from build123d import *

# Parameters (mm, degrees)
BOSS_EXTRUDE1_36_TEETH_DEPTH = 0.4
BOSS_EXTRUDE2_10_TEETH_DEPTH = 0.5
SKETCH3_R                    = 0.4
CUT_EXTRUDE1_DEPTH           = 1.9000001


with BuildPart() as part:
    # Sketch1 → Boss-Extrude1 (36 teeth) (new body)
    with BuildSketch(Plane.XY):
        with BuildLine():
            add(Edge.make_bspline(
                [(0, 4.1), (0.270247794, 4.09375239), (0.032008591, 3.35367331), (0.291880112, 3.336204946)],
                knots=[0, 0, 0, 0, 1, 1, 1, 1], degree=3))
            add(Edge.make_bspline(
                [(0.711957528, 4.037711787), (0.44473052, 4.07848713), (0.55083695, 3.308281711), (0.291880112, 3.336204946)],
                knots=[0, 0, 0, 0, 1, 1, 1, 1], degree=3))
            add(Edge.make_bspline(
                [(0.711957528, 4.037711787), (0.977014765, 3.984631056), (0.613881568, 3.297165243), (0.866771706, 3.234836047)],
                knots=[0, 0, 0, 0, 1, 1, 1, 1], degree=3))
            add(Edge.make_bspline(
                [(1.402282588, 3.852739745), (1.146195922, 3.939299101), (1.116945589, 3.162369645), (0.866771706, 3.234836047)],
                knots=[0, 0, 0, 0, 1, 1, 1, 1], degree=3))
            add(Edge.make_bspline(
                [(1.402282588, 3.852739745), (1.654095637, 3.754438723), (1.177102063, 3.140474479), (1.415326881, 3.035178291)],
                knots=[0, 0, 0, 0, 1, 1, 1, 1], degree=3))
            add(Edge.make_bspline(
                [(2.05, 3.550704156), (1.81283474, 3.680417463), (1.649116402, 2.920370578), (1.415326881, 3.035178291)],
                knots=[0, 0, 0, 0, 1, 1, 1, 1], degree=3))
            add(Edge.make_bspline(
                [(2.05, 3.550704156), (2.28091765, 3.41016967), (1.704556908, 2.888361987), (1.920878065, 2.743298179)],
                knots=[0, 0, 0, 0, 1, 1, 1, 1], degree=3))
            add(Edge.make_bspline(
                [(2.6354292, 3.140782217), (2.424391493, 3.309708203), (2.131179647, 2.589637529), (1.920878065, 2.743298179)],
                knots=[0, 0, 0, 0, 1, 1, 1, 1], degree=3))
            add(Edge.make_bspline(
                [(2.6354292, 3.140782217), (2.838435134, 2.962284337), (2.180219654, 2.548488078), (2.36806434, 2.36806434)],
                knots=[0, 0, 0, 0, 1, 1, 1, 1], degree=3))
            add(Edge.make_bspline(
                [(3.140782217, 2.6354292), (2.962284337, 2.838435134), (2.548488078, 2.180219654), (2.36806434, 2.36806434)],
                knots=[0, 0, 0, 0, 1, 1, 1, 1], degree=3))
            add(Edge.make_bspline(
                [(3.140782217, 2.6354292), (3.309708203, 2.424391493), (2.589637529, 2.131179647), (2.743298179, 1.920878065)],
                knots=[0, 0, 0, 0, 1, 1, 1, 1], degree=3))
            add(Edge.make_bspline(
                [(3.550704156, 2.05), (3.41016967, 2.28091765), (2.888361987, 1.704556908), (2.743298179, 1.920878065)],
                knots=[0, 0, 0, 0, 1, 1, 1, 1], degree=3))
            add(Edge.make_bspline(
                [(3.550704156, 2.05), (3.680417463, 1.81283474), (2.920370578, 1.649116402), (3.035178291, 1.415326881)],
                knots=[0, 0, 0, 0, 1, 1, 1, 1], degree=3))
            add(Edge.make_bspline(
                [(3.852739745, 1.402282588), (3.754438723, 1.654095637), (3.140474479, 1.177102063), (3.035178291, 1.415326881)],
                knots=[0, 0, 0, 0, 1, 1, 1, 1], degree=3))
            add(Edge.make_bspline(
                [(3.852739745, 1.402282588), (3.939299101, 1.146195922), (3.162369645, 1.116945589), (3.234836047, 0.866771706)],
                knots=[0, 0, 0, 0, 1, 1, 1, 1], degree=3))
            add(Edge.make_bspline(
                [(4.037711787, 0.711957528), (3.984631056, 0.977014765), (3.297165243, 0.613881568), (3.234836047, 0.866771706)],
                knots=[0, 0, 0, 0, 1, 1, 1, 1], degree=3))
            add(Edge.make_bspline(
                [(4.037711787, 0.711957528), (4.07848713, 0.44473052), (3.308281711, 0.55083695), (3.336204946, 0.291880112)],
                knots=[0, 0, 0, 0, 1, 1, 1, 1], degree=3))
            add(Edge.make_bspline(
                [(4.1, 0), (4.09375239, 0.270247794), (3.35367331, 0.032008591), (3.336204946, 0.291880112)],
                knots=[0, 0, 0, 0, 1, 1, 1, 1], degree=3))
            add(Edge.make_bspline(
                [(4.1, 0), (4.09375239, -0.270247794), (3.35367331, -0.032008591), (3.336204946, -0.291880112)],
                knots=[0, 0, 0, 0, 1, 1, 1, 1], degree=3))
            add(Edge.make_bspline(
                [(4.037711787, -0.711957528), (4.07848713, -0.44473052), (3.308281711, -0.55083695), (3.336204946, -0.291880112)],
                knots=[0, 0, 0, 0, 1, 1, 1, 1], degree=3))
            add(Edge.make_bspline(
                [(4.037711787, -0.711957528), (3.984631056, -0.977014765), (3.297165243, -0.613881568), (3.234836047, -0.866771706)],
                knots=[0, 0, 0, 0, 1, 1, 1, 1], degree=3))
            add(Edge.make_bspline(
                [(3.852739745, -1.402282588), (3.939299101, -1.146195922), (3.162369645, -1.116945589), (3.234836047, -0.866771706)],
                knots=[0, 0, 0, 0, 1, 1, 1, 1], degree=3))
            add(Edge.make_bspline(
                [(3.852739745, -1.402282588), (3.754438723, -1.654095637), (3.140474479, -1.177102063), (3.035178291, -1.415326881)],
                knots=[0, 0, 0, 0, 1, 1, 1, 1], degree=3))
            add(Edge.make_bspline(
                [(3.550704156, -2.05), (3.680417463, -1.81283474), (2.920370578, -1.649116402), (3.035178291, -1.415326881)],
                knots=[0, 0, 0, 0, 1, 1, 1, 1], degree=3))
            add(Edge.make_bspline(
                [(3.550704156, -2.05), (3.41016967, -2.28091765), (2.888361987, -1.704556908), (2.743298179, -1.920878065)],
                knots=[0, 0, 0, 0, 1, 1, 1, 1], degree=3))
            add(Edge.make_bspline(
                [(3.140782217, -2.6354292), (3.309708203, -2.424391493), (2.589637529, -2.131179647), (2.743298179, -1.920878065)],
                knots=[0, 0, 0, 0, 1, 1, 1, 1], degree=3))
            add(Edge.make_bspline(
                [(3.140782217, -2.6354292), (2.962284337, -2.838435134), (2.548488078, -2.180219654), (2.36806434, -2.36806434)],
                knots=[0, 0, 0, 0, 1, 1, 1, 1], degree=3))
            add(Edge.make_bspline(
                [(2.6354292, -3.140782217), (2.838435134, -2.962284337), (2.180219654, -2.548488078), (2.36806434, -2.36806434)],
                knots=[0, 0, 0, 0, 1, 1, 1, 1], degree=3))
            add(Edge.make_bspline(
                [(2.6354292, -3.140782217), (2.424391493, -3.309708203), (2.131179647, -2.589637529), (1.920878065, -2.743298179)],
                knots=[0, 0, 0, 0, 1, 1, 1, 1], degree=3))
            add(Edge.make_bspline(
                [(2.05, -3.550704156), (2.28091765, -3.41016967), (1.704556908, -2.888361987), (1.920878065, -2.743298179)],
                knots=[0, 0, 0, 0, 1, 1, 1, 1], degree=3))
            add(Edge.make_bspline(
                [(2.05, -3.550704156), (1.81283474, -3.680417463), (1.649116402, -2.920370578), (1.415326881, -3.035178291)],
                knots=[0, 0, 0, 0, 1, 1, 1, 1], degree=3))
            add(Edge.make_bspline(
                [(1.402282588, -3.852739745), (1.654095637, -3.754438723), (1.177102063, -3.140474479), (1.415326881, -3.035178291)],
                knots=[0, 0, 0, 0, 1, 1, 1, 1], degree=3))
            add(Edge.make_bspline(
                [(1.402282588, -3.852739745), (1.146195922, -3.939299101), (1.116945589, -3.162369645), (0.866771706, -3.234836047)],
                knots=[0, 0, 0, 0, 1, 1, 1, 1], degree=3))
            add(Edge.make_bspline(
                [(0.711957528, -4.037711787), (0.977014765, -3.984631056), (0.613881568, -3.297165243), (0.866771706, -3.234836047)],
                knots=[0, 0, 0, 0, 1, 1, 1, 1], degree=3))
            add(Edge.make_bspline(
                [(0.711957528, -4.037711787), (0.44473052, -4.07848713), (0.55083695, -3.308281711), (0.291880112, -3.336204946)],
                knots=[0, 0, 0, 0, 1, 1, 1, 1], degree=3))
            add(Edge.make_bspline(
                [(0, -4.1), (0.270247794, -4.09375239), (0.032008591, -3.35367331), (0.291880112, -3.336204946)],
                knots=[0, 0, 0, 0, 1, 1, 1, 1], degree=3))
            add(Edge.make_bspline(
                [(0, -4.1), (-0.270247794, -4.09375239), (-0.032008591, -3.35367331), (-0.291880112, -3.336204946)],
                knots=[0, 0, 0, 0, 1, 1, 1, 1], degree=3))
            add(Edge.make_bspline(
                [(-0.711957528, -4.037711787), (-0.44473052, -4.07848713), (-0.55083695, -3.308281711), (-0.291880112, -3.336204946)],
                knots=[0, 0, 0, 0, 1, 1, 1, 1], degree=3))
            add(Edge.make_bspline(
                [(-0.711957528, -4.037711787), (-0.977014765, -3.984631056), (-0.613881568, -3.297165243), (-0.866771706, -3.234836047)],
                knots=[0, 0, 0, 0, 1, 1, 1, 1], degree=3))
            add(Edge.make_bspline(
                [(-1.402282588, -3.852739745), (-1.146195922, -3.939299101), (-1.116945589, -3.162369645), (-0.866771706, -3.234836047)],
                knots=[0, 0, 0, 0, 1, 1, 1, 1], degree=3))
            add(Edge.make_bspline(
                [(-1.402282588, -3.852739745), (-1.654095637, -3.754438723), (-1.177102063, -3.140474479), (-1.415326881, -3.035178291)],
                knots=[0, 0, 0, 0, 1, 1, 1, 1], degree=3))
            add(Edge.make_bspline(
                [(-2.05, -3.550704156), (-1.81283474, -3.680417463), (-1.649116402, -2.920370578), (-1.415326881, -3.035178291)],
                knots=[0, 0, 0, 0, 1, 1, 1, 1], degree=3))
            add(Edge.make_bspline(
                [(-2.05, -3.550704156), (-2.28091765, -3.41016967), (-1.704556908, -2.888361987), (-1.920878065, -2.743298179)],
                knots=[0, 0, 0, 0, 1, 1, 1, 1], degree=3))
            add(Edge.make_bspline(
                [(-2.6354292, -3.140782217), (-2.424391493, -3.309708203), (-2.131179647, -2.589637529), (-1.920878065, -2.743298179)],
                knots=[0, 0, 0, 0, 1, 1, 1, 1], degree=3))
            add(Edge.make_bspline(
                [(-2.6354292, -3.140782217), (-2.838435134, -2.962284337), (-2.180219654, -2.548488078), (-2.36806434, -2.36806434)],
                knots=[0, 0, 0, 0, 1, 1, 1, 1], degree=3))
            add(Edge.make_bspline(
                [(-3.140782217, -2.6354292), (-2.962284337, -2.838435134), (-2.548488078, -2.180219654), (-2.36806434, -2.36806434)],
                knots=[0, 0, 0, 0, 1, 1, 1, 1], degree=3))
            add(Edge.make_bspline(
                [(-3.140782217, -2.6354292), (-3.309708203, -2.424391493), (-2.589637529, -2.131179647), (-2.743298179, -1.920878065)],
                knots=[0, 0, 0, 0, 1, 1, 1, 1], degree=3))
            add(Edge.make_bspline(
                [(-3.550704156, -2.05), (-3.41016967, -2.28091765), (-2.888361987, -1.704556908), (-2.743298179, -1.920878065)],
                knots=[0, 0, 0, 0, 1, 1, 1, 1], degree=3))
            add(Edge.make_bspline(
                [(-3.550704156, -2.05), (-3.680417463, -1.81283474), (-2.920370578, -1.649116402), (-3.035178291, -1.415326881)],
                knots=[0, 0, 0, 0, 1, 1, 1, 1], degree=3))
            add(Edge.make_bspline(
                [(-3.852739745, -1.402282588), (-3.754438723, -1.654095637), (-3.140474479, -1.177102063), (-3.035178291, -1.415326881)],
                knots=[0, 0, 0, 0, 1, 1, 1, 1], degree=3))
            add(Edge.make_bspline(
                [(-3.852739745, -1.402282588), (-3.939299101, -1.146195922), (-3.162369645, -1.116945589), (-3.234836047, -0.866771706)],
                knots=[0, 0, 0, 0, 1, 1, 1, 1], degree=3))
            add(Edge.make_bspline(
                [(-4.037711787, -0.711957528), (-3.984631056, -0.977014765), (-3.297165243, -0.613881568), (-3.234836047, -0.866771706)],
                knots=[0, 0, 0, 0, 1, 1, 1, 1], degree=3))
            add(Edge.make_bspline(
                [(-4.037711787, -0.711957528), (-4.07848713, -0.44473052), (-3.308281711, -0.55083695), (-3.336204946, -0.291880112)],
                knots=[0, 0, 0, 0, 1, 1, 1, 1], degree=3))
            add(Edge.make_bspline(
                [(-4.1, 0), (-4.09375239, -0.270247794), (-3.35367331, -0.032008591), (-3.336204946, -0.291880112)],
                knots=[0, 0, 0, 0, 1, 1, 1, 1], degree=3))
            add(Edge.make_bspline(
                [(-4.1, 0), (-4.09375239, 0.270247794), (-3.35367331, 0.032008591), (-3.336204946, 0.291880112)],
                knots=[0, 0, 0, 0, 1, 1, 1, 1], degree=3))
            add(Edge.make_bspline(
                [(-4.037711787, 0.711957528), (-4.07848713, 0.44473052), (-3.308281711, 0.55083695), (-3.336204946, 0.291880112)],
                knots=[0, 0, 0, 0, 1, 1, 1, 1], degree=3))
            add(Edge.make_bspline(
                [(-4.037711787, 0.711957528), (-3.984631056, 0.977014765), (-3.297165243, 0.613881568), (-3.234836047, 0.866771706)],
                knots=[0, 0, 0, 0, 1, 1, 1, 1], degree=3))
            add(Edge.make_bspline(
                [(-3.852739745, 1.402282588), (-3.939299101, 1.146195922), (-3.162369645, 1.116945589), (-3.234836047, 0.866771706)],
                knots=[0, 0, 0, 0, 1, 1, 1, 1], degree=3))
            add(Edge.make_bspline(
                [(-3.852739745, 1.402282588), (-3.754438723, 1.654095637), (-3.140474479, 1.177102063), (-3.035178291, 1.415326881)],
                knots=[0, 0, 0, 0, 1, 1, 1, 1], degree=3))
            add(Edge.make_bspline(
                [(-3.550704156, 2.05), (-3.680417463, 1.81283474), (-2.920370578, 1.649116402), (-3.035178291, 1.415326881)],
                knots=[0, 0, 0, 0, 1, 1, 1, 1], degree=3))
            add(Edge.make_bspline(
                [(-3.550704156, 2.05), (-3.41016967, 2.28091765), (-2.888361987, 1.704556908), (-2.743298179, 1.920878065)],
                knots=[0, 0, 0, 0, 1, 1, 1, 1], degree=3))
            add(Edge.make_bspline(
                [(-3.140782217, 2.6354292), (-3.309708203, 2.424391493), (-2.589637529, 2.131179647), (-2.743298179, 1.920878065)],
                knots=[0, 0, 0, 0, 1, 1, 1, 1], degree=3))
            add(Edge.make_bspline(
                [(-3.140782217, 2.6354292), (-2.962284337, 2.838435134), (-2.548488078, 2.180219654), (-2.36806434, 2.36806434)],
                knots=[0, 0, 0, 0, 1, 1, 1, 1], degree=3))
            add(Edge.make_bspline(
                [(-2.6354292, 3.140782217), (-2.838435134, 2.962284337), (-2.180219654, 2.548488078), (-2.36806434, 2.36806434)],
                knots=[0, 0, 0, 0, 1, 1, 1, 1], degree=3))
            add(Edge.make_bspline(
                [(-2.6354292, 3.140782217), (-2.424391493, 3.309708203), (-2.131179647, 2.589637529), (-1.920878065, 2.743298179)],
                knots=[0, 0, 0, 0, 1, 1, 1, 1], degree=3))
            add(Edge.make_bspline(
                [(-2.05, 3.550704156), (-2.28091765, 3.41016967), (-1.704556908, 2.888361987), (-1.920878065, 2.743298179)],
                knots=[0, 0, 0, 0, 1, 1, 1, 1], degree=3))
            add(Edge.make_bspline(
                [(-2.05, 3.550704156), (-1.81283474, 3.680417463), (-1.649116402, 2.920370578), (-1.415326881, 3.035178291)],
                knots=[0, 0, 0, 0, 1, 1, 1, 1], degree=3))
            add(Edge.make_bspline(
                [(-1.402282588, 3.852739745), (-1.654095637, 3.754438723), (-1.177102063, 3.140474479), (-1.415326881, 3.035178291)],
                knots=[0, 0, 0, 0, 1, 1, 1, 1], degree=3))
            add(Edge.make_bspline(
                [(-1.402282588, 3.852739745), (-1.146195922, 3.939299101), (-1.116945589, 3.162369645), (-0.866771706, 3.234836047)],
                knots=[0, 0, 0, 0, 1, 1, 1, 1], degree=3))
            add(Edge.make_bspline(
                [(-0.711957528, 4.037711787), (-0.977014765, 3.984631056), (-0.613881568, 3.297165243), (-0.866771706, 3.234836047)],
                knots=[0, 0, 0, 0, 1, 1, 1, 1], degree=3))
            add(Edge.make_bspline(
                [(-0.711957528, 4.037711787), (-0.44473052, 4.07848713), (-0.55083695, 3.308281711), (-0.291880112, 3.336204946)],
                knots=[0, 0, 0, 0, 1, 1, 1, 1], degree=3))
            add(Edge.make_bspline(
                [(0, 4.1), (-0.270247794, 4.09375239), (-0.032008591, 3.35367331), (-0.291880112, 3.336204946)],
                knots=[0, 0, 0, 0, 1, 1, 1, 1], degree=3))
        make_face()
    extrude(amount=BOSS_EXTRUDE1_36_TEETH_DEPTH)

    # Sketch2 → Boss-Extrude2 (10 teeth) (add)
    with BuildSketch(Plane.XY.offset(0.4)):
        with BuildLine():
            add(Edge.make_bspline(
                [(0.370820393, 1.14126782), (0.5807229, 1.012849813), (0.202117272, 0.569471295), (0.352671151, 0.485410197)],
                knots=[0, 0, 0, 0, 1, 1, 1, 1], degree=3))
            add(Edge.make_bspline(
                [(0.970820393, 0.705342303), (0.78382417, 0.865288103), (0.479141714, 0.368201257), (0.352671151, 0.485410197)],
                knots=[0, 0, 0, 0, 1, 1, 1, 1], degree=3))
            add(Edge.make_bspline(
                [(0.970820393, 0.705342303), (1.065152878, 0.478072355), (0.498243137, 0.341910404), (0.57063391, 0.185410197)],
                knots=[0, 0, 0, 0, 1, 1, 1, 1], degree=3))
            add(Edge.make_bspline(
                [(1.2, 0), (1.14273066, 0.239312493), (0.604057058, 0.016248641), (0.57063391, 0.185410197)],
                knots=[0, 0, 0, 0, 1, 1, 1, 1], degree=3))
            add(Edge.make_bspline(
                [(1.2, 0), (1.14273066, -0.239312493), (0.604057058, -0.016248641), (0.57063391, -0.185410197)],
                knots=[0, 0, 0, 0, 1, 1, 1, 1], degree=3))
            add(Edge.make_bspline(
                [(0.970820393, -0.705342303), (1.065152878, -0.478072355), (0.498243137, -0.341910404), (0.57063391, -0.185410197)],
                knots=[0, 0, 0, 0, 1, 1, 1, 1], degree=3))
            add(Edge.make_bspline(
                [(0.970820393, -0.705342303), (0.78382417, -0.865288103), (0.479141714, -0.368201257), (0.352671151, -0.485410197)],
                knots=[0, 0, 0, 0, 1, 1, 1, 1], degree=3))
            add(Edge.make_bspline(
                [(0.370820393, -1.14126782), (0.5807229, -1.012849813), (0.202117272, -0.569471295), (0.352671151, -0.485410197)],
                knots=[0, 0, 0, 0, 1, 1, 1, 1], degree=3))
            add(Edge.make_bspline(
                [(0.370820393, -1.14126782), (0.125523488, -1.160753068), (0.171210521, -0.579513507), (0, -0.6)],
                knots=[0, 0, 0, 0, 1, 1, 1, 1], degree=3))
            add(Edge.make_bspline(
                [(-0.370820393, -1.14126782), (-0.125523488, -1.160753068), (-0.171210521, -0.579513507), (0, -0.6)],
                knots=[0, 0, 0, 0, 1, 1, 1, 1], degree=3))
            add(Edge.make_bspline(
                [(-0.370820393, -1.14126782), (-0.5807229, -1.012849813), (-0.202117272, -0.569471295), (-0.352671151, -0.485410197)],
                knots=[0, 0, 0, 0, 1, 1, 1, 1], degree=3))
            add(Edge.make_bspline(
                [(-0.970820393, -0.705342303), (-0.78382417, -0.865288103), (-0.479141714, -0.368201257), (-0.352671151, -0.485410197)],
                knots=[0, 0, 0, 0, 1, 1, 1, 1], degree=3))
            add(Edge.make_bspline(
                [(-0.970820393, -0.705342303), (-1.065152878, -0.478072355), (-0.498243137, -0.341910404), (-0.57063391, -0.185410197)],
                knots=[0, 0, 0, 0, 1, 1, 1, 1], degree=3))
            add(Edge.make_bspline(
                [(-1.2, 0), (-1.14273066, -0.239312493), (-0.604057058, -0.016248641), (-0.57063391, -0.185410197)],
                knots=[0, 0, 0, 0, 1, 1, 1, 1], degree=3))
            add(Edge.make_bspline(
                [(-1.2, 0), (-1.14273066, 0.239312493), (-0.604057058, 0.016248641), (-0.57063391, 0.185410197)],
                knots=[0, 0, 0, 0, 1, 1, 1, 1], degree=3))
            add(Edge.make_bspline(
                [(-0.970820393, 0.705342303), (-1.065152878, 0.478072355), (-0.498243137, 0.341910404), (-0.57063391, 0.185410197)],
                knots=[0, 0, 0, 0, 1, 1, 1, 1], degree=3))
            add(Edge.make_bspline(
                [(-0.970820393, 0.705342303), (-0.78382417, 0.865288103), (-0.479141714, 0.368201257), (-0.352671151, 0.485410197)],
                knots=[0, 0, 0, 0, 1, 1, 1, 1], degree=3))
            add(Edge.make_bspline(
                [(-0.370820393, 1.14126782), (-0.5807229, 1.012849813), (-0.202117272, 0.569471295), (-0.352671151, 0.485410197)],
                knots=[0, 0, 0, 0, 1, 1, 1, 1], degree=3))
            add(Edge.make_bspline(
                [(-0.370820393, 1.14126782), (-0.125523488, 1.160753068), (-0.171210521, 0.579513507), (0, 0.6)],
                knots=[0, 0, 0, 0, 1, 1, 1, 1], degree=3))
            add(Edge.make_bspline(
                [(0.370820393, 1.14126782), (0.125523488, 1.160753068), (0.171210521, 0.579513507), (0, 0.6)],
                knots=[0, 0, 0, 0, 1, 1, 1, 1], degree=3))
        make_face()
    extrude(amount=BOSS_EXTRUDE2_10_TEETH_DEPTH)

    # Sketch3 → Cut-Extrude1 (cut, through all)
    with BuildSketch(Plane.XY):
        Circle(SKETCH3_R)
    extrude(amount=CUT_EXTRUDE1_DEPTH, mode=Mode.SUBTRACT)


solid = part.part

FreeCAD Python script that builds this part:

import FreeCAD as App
import Part
import Sketcher
from FreeCAD import Vector
Q = App.Units.Quantity

doc = App.newDocument("Part")
body = doc.addObject("PartDesign::Body", "Body")

sketch1 = body.newObject("Sketcher::SketchObject", "Sketch")
sketch1.AttachmentSupport = (doc.getObject("XY_Plane"), [""])
sketch1.MapMode = "FlatFace"
sketch1.addGeometry([
    Part.BSplineCurve([Vector(0, 4.1, 0), Vector(0.270248, 4.093752, 0), Vector(0.032009, 3.353673, 0), Vector(0.29188, 3.336205, 0)], [4, 4], [0, 1], False, 3, [1, 1, 1, 1], False),
    Part.BSplineCurve([Vector(0, 4.1, 0), Vector(-0.270248, 4.093752, 0), Vector(-0.032009, 3.353673, 0), Vector(-0.29188, 3.336205, 0)], [4, 4], [0, 1], False, 3, [1, 1, 1, 1], False),
    Part.BSplineCurve([Vector(-0.711958, 4.037712, 0), Vector(-0.444731, 4.078487, 0), Vector(-0.550837, 3.308282, 0), Vector(-0.29188, 3.336205, 0)], [4, 4], [0, 1], False, 3, [1, 1, 1, 1], False),
    Part.BSplineCurve([Vector(-0.711958, 4.037712, 0), Vector(-0.977015, 3.984631, 0), Vector(-0.613882, 3.297165, 0), Vector(-0.866772, 3.234836, 0)], [4, 4], [0, 1], False, 3, [1, 1, 1, 1], False),
    Part.BSplineCurve([Vector(-1.402283, 3.85274, 0), Vector(-1.146196, 3.939299, 0), Vector(-1.116946, 3.16237, 0), Vector(-0.866772, 3.234836, 0)], [4, 4], [0, 1], False, 3, [1, 1, 1, 1], False),
    Part.BSplineCurve([Vector(-1.402283, 3.85274, 0), Vector(-1.654096, 3.754439, 0), Vector(-1.177102, 3.140474, 0), Vector(-1.415327, 3.035178, 0)], [4, 4], [0, 1], False, 3, [1, 1, 1, 1], False),
    Part.BSplineCurve([Vector(-2.05, 3.550704, 0), Vector(-1.812835, 3.680417, 0), Vector(-1.649116, 2.920371, 0), Vector(-1.415327, 3.035178, 0)], [4, 4], [0, 1], False, 3, [1, 1, 1, 1], False),
    Part.BSplineCurve([Vector(-2.05, 3.550704, 0), Vector(-2.280918, 3.41017, 0), Vector(-1.704557, 2.888362, 0), Vector(-1.920878, 2.743298, 0)], [4, 4], [0, 1], False, 3, [1, 1, 1, 1], False),
    Part.BSplineCurve([Vector(-2.635429, 3.140782, 0), Vector(-2.424391, 3.309708, 0), Vector(-2.13118, 2.589638, 0), Vector(-1.920878, 2.743298, 0)], [4, 4], [0, 1], False, 3, [1, 1, 1, 1], False),
    Part.BSplineCurve([Vector(-2.635429, 3.140782, 0), Vector(-2.838435, 2.962284, 0), Vector(-2.18022, 2.548488, 0), Vector(-2.368064, 2.368064, 0)], [4, 4], [0, 1], False, 3, [1, 1, 1, 1], False),
    Part.BSplineCurve([Vector(-3.140782, 2.635429, 0), Vector(-2.962284, 2.838435, 0), Vector(-2.548488, 2.18022, 0), Vector(-2.368064, 2.368064, 0)], [4, 4], [0, 1], False, 3, [1, 1, 1, 1], False),
    Part.BSplineCurve([Vector(-3.140782, 2.635429, 0), Vector(-3.309708, 2.424391, 0), Vector(-2.589638, 2.13118, 0), Vector(-2.743298, 1.920878, 0)], [4, 4], [0, 1], False, 3, [1, 1, 1, 1], False),
    Part.BSplineCurve([Vector(-3.550704, 2.05, 0), Vector(-3.41017, 2.280918, 0), Vector(-2.888362, 1.704557, 0), Vector(-2.743298, 1.920878, 0)], [4, 4], [0, 1], False, 3, [1, 1, 1, 1], False),
    Part.BSplineCurve([Vector(-3.550704, 2.05, 0), Vector(-3.680417, 1.812835, 0), Vector(-2.920371, 1.649116, 0), Vector(-3.035178, 1.415327, 0)], [4, 4], [0, 1], False, 3, [1, 1, 1, 1], False),
    Part.BSplineCurve([Vector(-3.85274, 1.402283, 0), Vector(-3.754439, 1.654096, 0), Vector(-3.140474, 1.177102, 0), Vector(-3.035178, 1.415327, 0)], [4, 4], [0, 1], False, 3, [1, 1, 1, 1], False),
    Part.BSplineCurve([Vector(-3.85274, 1.402283, 0), Vector(-3.939299, 1.146196, 0), Vector(-3.16237, 1.116946, 0), Vector(-3.234836, 0.866772, 0)], [4, 4], [0, 1], False, 3, [1, 1, 1, 1], False),
    Part.BSplineCurve([Vector(-4.037712, 0.711958, 0), Vector(-3.984631, 0.977015, 0), Vector(-3.297165, 0.613882, 0), Vector(-3.234836, 0.866772, 0)], [4, 4], [0, 1], False, 3, [1, 1, 1, 1], False),
    Part.BSplineCurve([Vector(-4.037712, 0.711958, 0), Vector(-4.078487, 0.444731, 0), Vector(-3.308282, 0.550837, 0), Vector(-3.336205, 0.29188, 0)], [4, 4], [0, 1], False, 3, [1, 1, 1, 1], False),
    Part.BSplineCurve([Vector(-4.1, 0, 0), Vector(-4.093752, 0.270248, 0), Vector(-3.353673, 0.032009, 0), Vector(-3.336205, 0.29188, 0)], [4, 4], [0, 1], False, 3, [1, 1, 1, 1], False),
    Part.BSplineCurve([Vector(-4.1, 0, 0), Vector(-4.093752, -0.270248, 0), Vector(-3.353673, -0.032009, 0), Vector(-3.336205, -0.29188, 0)], [4, 4], [0, 1], False, 3, [1, 1, 1, 1], False),
    Part.BSplineCurve([Vector(-4.037712, -0.711958, 0), Vector(-4.078487, -0.444731, 0), Vector(-3.308282, -0.550837, 0), Vector(-3.336205, -0.29188, 0)], [4, 4], [0, 1], False, 3, [1, 1, 1, 1], False),
    Part.BSplineCurve([Vector(-4.037712, -0.711958, 0), Vector(-3.984631, -0.977015, 0), Vector(-3.297165, -0.613882, 0), Vector(-3.234836, -0.866772, 0)], [4, 4], [0, 1], False, 3, [1, 1, 1, 1], False),
    Part.BSplineCurve([Vector(-3.85274, -1.402283, 0), Vector(-3.939299, -1.146196, 0), Vector(-3.16237, -1.116946, 0), Vector(-3.234836, -0.866772, 0)], [4, 4], [0, 1], False, 3, [1, 1, 1, 1], False),
    Part.BSplineCurve([Vector(-3.85274, -1.402283, 0), Vector(-3.754439, -1.654096, 0), Vector(-3.140474, -1.177102, 0), Vector(-3.035178, -1.415327, 0)], [4, 4], [0, 1], False, 3, [1, 1, 1, 1], False),
    Part.BSplineCurve([Vector(-3.550704, -2.05, 0), Vector(-3.680417, -1.812835, 0), Vector(-2.920371, -1.649116, 0), Vector(-3.035178, -1.415327, 0)], [4, 4], [0, 1], False, 3, [1, 1, 1, 1], False),
    Part.BSplineCurve([Vector(-3.550704, -2.05, 0), Vector(-3.41017, -2.280918, 0), Vector(-2.888362, -1.704557, 0), Vector(-2.743298, -1.920878, 0)], [4, 4], [0, 1], False, 3, [1, 1, 1, 1], False),
    Part.BSplineCurve([Vector(-3.140782, -2.635429, 0), Vector(-3.309708, -2.424391, 0), Vector(-2.589638, -2.13118, 0), Vector(-2.743298, -1.920878, 0)], [4, 4], [0, 1], False, 3, [1, 1, 1, 1], False),
    Part.BSplineCurve([Vector(-3.140782, -2.635429, 0), Vector(-2.962284, -2.838435, 0), Vector(-2.548488, -2.18022, 0), Vector(-2.368064, -2.368064, 0)], [4, 4], [0, 1], False, 3, [1, 1, 1, 1], False),
    Part.BSplineCurve([Vector(-2.635429, -3.140782, 0), Vector(-2.838435, -2.962284, 0), Vector(-2.18022, -2.548488, 0), Vector(-2.368064, -2.368064, 0)], [4, 4], [0, 1], False, 3, [1, 1, 1, 1], False),
    Part.BSplineCurve([Vector(-2.635429, -3.140782, 0), Vector(-2.424391, -3.309708, 0), Vector(-2.13118, -2.589638, 0), Vector(-1.920878, -2.743298, 0)], [4, 4], [0, 1], False, 3, [1, 1, 1, 1], False),
    Part.BSplineCurve([Vector(-2.05, -3.550704, 0), Vector(-2.280918, -3.41017, 0), Vector(-1.704557, -2.888362, 0), Vector(-1.920878, -2.743298, 0)], [4, 4], [0, 1], False, 3, [1, 1, 1, 1], False),
    Part.BSplineCurve([Vector(-2.05, -3.550704, 0), Vector(-1.812835, -3.680417, 0), Vector(-1.649116, -2.920371, 0), Vector(-1.415327, -3.035178, 0)], [4, 4], [0, 1], False, 3, [1, 1, 1, 1], False),
    Part.BSplineCurve([Vector(-1.402283, -3.85274, 0), Vector(-1.654096, -3.754439, 0), Vector(-1.177102, -3.140474, 0), Vector(-1.415327, -3.035178, 0)], [4, 4], [0, 1], False, 3, [1, 1, 1, 1], False),
    Part.BSplineCurve([Vector(-1.402283, -3.85274, 0), Vector(-1.146196, -3.939299, 0), Vector(-1.116946, -3.16237, 0), Vector(-0.866772, -3.234836, 0)], [4, 4], [0, 1], False, 3, [1, 1, 1, 1], False),
    Part.BSplineCurve([Vector(-0.711958, -4.037712, 0), Vector(-0.977015, -3.984631, 0), Vector(-0.613882, -3.297165, 0), Vector(-0.866772, -3.234836, 0)], [4, 4], [0, 1], False, 3, [1, 1, 1, 1], False),
    Part.BSplineCurve([Vector(-0.711958, -4.037712, 0), Vector(-0.444731, -4.078487, 0), Vector(-0.550837, -3.308282, 0), Vector(-0.29188, -3.336205, 0)], [4, 4], [0, 1], False, 3, [1, 1, 1, 1], False),
    Part.BSplineCurve([Vector(0, -4.1, 0), Vector(-0.270248, -4.093752, 0), Vector(-0.032009, -3.353673, 0), Vector(-0.29188, -3.336205, 0)], [4, 4], [0, 1], False, 3, [1, 1, 1, 1], False),
    Part.BSplineCurve([Vector(0, -4.1, 0), Vector(0.270248, -4.093752, 0), Vector(0.032009, -3.353673, 0), Vector(0.29188, -3.336205, 0)], [4, 4], [0, 1], False, 3, [1, 1, 1, 1], False),
    Part.BSplineCurve([Vector(0.711958, -4.037712, 0), Vector(0.444731, -4.078487, 0), Vector(0.550837, -3.308282, 0), Vector(0.29188, -3.336205, 0)], [4, 4], [0, 1], False, 3, [1, 1, 1, 1], False),
    Part.BSplineCurve([Vector(0.711958, -4.037712, 0), Vector(0.977015, -3.984631, 0), Vector(0.613882, -3.297165, 0), Vector(0.866772, -3.234836, 0)], [4, 4], [0, 1], False, 3, [1, 1, 1, 1], False),
    Part.BSplineCurve([Vector(1.402283, -3.85274, 0), Vector(1.146196, -3.939299, 0), Vector(1.116946, -3.16237, 0), Vector(0.866772, -3.234836, 0)], [4, 4], [0, 1], False, 3, [1, 1, 1, 1], False),
    Part.BSplineCurve([Vector(1.402283, -3.85274, 0), Vector(1.654096, -3.754439, 0), Vector(1.177102, -3.140474, 0), Vector(1.415327, -3.035178, 0)], [4, 4], [0, 1], False, 3, [1, 1, 1, 1], False),
    Part.BSplineCurve([Vector(2.05, -3.550704, 0), Vector(1.812835, -3.680417, 0), Vector(1.649116, -2.920371, 0), Vector(1.415327, -3.035178, 0)], [4, 4], [0, 1], False, 3, [1, 1, 1, 1], False),
    Part.BSplineCurve([Vector(2.05, -3.550704, 0), Vector(2.280918, -3.41017, 0), Vector(1.704557, -2.888362, 0), Vector(1.920878, -2.743298, 0)], [4, 4], [0, 1], False, 3, [1, 1, 1, 1], False),
    Part.BSplineCurve([Vector(2.635429, -3.140782, 0), Vector(2.424391, -3.309708, 0), Vector(2.13118, -2.589638, 0), Vector(1.920878, -2.743298, 0)], [4, 4], [0, 1], False, 3, [1, 1, 1, 1], False),
    Part.BSplineCurve([Vector(2.635429, -3.140782, 0), Vector(2.838435, -2.962284, 0), Vector(2.18022, -2.548488, 0), Vector(2.368064, -2.368064, 0)], [4, 4], [0, 1], False, 3, [1, 1, 1, 1], False),
    Part.BSplineCurve([Vector(3.140782, -2.635429, 0), Vector(2.962284, -2.838435, 0), Vector(2.548488, -2.18022, 0), Vector(2.368064, -2.368064, 0)], [4, 4], [0, 1], False, 3, [1, 1, 1, 1], False),
    Part.BSplineCurve([Vector(3.140782, -2.635429, 0), Vector(3.309708, -2.424391, 0), Vector(2.589638, -2.13118, 0), Vector(2.743298, -1.920878, 0)], [4, 4], [0, 1], False, 3, [1, 1, 1, 1], False),
    Part.BSplineCurve([Vector(3.550704, -2.05, 0), Vector(3.41017, -2.280918, 0), Vector(2.888362, -1.704557, 0), Vector(2.743298, -1.920878, 0)], [4, 4], [0, 1], False, 3, [1, 1, 1, 1], False),
    Part.BSplineCurve([Vector(3.550704, -2.05, 0), Vector(3.680417, -1.812835, 0), Vector(2.920371, -1.649116, 0), Vector(3.035178, -1.415327, 0)], [4, 4], [0, 1], False, 3, [1, 1, 1, 1], False),
    Part.BSplineCurve([Vector(3.85274, -1.402283, 0), Vector(3.754439, -1.654096, 0), Vector(3.140474, -1.177102, 0), Vector(3.035178, -1.415327, 0)], [4, 4], [0, 1], False, 3, [1, 1, 1, 1], False),
    Part.BSplineCurve([Vector(3.85274, -1.402283, 0), Vector(3.939299, -1.146196, 0), Vector(3.16237, -1.116946, 0), Vector(3.234836, -0.866772, 0)], [4, 4], [0, 1], False, 3, [1, 1, 1, 1], False),
    Part.BSplineCurve([Vector(4.037712, -0.711958, 0), Vector(3.984631, -0.977015, 0), Vector(3.297165, -0.613882, 0), Vector(3.234836, -0.866772, 0)], [4, 4], [0, 1], False, 3, [1, 1, 1, 1], False),
    Part.BSplineCurve([Vector(4.037712, -0.711958, 0), Vector(4.078487, -0.444731, 0), Vector(3.308282, -0.550837, 0), Vector(3.336205, -0.29188, 0)], [4, 4], [0, 1], False, 3, [1, 1, 1, 1], False),
    Part.BSplineCurve([Vector(4.1, 0, 0), Vector(4.093752, -0.270248, 0), Vector(3.353673, -0.032009, 0), Vector(3.336205, -0.29188, 0)], [4, 4], [0, 1], False, 3, [1, 1, 1, 1], False),
    Part.BSplineCurve([Vector(4.1, 0, 0), Vector(4.093752, 0.270248, 0), Vector(3.353673, 0.032009, 0), Vector(3.336205, 0.29188, 0)], [4, 4], [0, 1], False, 3, [1, 1, 1, 1], False),
    Part.BSplineCurve([Vector(4.037712, 0.711958, 0), Vector(4.078487, 0.444731, 0), Vector(3.308282, 0.550837, 0), Vector(3.336205, 0.29188, 0)], [4, 4], [0, 1], False, 3, [1, 1, 1, 1], False),
    Part.BSplineCurve([Vector(4.037712, 0.711958, 0), Vector(3.984631, 0.977015, 0), Vector(3.297165, 0.613882, 0), Vector(3.234836, 0.866772, 0)], [4, 4], [0, 1], False, 3, [1, 1, 1, 1], False),
    Part.BSplineCurve([Vector(3.85274, 1.402283, 0), Vector(3.939299, 1.146196, 0), Vector(3.16237, 1.116946, 0), Vector(3.234836, 0.866772, 0)], [4, 4], [0, 1], False, 3, [1, 1, 1, 1], False),
    Part.BSplineCurve([Vector(3.85274, 1.402283, 0), Vector(3.754439, 1.654096, 0), Vector(3.140474, 1.177102, 0), Vector(3.035178, 1.415327, 0)], [4, 4], [0, 1], False, 3, [1, 1, 1, 1], False),
    Part.BSplineCurve([Vector(3.550704, 2.05, 0), Vector(3.680417, 1.812835, 0), Vector(2.920371, 1.649116, 0), Vector(3.035178, 1.415327, 0)], [4, 4], [0, 1], False, 3, [1, 1, 1, 1], False),
    Part.BSplineCurve([Vector(3.550704, 2.05, 0), Vector(3.41017, 2.280918, 0), Vector(2.888362, 1.704557, 0), Vector(2.743298, 1.920878, 0)], [4, 4], [0, 1], False, 3, [1, 1, 1, 1], False),
    Part.BSplineCurve([Vector(3.140782, 2.635429, 0), Vector(3.309708, 2.424391, 0), Vector(2.589638, 2.13118, 0), Vector(2.743298, 1.920878, 0)], [4, 4], [0, 1], False, 3, [1, 1, 1, 1], False),
    Part.BSplineCurve([Vector(3.140782, 2.635429, 0), Vector(2.962284, 2.838435, 0), Vector(2.548488, 2.18022, 0), Vector(2.368064, 2.368064, 0)], [4, 4], [0, 1], False, 3, [1, 1, 1, 1], False),
    Part.BSplineCurve([Vector(2.635429, 3.140782, 0), Vector(2.838435, 2.962284, 0), Vector(2.18022, 2.548488, 0), Vector(2.368064, 2.368064, 0)], [4, 4], [0, 1], False, 3, [1, 1, 1, 1], False),
    Part.BSplineCurve([Vector(2.635429, 3.140782, 0), Vector(2.424391, 3.309708, 0), Vector(2.13118, 2.589638, 0), Vector(1.920878, 2.743298, 0)], [4, 4], [0, 1], False, 3, [1, 1, 1, 1], False),
    Part.BSplineCurve([Vector(2.05, 3.550704, 0), Vector(2.280918, 3.41017, 0), Vector(1.704557, 2.888362, 0), Vector(1.920878, 2.743298, 0)], [4, 4], [0, 1], False, 3, [1, 1, 1, 1], False),
    Part.BSplineCurve([Vector(2.05, 3.550704, 0), Vector(1.812835, 3.680417, 0), Vector(1.649116, 2.920371, 0), Vector(1.415327, 3.035178, 0)], [4, 4], [0, 1], False, 3, [1, 1, 1, 1], False),
    Part.BSplineCurve([Vector(1.402283, 3.85274, 0), Vector(1.654096, 3.754439, 0), Vector(1.177102, 3.140474, 0), Vector(1.415327, 3.035178, 0)], [4, 4], [0, 1], False, 3, [1, 1, 1, 1], False),
    Part.BSplineCurve([Vector(1.402283, 3.85274, 0), Vector(1.146196, 3.939299, 0), Vector(1.116946, 3.16237, 0), Vector(0.866772, 3.234836, 0)], [4, 4], [0, 1], False, 3, [1, 1, 1, 1], False),
    Part.BSplineCurve([Vector(0.711958, 4.037712, 0), Vector(0.977015, 3.984631, 0), Vector(0.613882, 3.297165, 0), Vector(0.866772, 3.234836, 0)], [4, 4], [0, 1], False, 3, [1, 1, 1, 1], False),
    Part.BSplineCurve([Vector(0.711958, 4.037712, 0), Vector(0.444731, 4.078487, 0), Vector(0.550837, 3.308282, 0), Vector(0.29188, 3.336205, 0)], [4, 4], [0, 1], False, 3, [1, 1, 1, 1], False),
], False)
sketch1.addConstraint([
    Sketcher.Constraint("Block", 0),
    Sketcher.Constraint("Block", 1),
    Sketcher.Constraint("Block", 2),
    Sketcher.Constraint("Block", 3),
    Sketcher.Constraint("Block", 4),
    Sketcher.Constraint("Block", 5),
    Sketcher.Constraint("Block", 6),
    Sketcher.Constraint("Block", 7),
    Sketcher.Constraint("Block", 8),
    Sketcher.Constraint("Block", 9),
    Sketcher.Constraint("Block", 10),
    Sketcher.Constraint("Block", 11),
    Sketcher.Constraint("Block", 12),
    Sketcher.Constraint("Block", 13),
    Sketcher.Constraint("Block", 14),
    Sketcher.Constraint("Block", 15),
    Sketcher.Constraint("Block", 16),
    Sketcher.Constraint("Block", 17),
    Sketcher.Constraint("Block", 18),
    Sketcher.Constraint("Block", 19),
    Sketcher.Constraint("Block", 20),
    Sketcher.Constraint("Block", 21),
    Sketcher.Constraint("Block", 22),
    Sketcher.Constraint("Block", 23),
    Sketcher.Constraint("Block", 24),
    Sketcher.Constraint("Block", 25),
    Sketcher.Constraint("Block", 26),
    Sketcher.Constraint("Block", 27),
    Sketcher.Constraint("Block", 28),
    Sketcher.Constraint("Block", 29),
    Sketcher.Constraint("Block", 30),
    Sketcher.Constraint("Block", 31),
    Sketcher.Constraint("Block", 32),
    Sketcher.Constraint("Block", 33),
    Sketcher.Constraint("Block", 34),
    Sketcher.Constraint("Block", 35),
    Sketcher.Constraint("Block", 36),
    Sketcher.Constraint("Block", 37),
    Sketcher.Constraint("Block", 38),
    Sketcher.Constraint("Block", 39),
    Sketcher.Constraint("Block", 40),
    Sketcher.Constraint("Block", 41),
    Sketcher.Constraint("Block", 42),
    Sketcher.Constraint("Block", 43),
    Sketcher.Constraint("Block", 44),
    Sketcher.Constraint("Block", 45),
    Sketcher.Constraint("Block", 46),
    Sketcher.Constraint("Block", 47),
    Sketcher.Constraint("Block", 48),
    Sketcher.Constraint("Block", 49),
    Sketcher.Constraint("Block", 50),
    Sketcher.Constraint("Block", 51),
    Sketcher.Constraint("Block", 52),
    Sketcher.Constraint("Block", 53),
    Sketcher.Constraint("Block", 54),
    Sketcher.Constraint("Block", 55),
    Sketcher.Constraint("Block", 56),
    Sketcher.Constraint("Block", 57),
    Sketcher.Constraint("Block", 58),
    Sketcher.Constraint("Block", 59),
    Sketcher.Constraint("Block", 60),
    Sketcher.Constraint("Block", 61),
    Sketcher.Constraint("Block", 62),
    Sketcher.Constraint("Block", 63),
    Sketcher.Constraint("Block", 64),
    Sketcher.Constraint("Block", 65),
    Sketcher.Constraint("Block", 66),
    Sketcher.Constraint("Block", 67),
    Sketcher.Constraint("Block", 68),
    Sketcher.Constraint("Block", 69),
    Sketcher.Constraint("Block", 70),
    Sketcher.Constraint("Block", 71),
])
pad1 = body.newObject("PartDesign::Pad", "Pad")
pad1.Profile = sketch1
pad1.Length = 0.4

sketch2 = body.newObject("Sketcher::SketchObject", "Sketch001")
sketch2.AttachmentSupport = (doc.getObject("XY_Plane"), [""])
sketch2.MapMode = "FlatFace"
sketch2.AttachmentOffset = App.Placement(Vector(0, 0, 0.4), App.Rotation())
sketch2.addGeometry([
    Part.BSplineCurve([Vector(0.37082, 1.141268, 0), Vector(0.580723, 1.01285, 0), Vector(0.202117, 0.569471, 0), Vector(0.352671, 0.48541, 0)], [4, 4], [0, 1], False, 3, [1, 1, 1, 1], False),
    Part.BSplineCurve([Vector(0.37082, 1.141268, 0), Vector(0.125523, 1.160753, 0), Vector(0.171211, 0.579514, 0), Vector(0, 0.6, 0)], [4, 4], [0, 1], False, 3, [1, 1, 1, 1], False),
    Part.BSplineCurve([Vector(-0.37082, 1.141268, 0), Vector(-0.125523, 1.160753, 0), Vector(-0.171211, 0.579514, 0), Vector(0, 0.6, 0)], [4, 4], [0, 1], False, 3, [1, 1, 1, 1], False),
    Part.BSplineCurve([Vector(-0.37082, 1.141268, 0), Vector(-0.580723, 1.01285, 0), Vector(-0.202117, 0.569471, 0), Vector(-0.352671, 0.48541, 0)], [4, 4], [0, 1], False, 3, [1, 1, 1, 1], False),
    Part.BSplineCurve([Vector(-0.97082, 0.705342, 0), Vector(-0.783824, 0.865288, 0), Vector(-0.479142, 0.368201, 0), Vector(-0.352671, 0.48541, 0)], [4, 4], [0, 1], False, 3, [1, 1, 1, 1], False),
    Part.BSplineCurve([Vector(-0.97082, 0.705342, 0), Vector(-1.065153, 0.478072, 0), Vector(-0.498243, 0.34191, 0), Vector(-0.570634, 0.18541, 0)], [4, 4], [0, 1], False, 3, [1, 1, 1, 1], False),
    Part.BSplineCurve([Vector(-1.2, 0, 0), Vector(-1.142731, 0.239312, 0), Vector(-0.604057, 0.016249, 0), Vector(-0.570634, 0.18541, 0)], [4, 4], [0, 1], False, 3, [1, 1, 1, 1], False),
    Part.BSplineCurve([Vector(-1.2, 0, 0), Vector(-1.142731, -0.239312, 0), Vector(-0.604057, -0.016249, 0), Vector(-0.570634, -0.18541, 0)], [4, 4], [0, 1], False, 3, [1, 1, 1, 1], False),
    Part.BSplineCurve([Vector(-0.97082, -0.705342, 0), Vector(-1.065153, -0.478072, 0), Vector(-0.498243, -0.34191, 0), Vector(-0.570634, -0.18541, 0)], [4, 4], [0, 1], False, 3, [1, 1, 1, 1], False),
    Part.BSplineCurve([Vector(-0.97082, -0.705342, 0), Vector(-0.783824, -0.865288, 0), Vector(-0.479142, -0.368201, 0), Vector(-0.352671, -0.48541, 0)], [4, 4], [0, 1], False, 3, [1, 1, 1, 1], False),
    Part.BSplineCurve([Vector(-0.37082, -1.141268, 0), Vector(-0.580723, -1.01285, 0), Vector(-0.202117, -0.569471, 0), Vector(-0.352671, -0.48541, 0)], [4, 4], [0, 1], False, 3, [1, 1, 1, 1], False),
    Part.BSplineCurve([Vector(-0.37082, -1.141268, 0), Vector(-0.125523, -1.160753, 0), Vector(-0.171211, -0.579514, 0), Vector(0, -0.6, 0)], [4, 4], [0, 1], False, 3, [1, 1, 1, 1], False),
    Part.BSplineCurve([Vector(0.37082, -1.141268, 0), Vector(0.125523, -1.160753, 0), Vector(0.171211, -0.579514, 0), Vector(0, -0.6, 0)], [4, 4], [0, 1], False, 3, [1, 1, 1, 1], False),
    Part.BSplineCurve([Vector(0.37082, -1.141268, 0), Vector(0.580723, -1.01285, 0), Vector(0.202117, -0.569471, 0), Vector(0.352671, -0.48541, 0)], [4, 4], [0, 1], False, 3, [1, 1, 1, 1], False),
    Part.BSplineCurve([Vector(0.97082, -0.705342, 0), Vector(0.783824, -0.865288, 0), Vector(0.479142, -0.368201, 0), Vector(0.352671, -0.48541, 0)], [4, 4], [0, 1], False, 3, [1, 1, 1, 1], False),
    Part.BSplineCurve([Vector(0.97082, -0.705342, 0), Vector(1.065153, -0.478072, 0), Vector(0.498243, -0.34191, 0), Vector(0.570634, -0.18541, 0)], [4, 4], [0, 1], False, 3, [1, 1, 1, 1], False),
    Part.BSplineCurve([Vector(1.2, 0, 0), Vector(1.142731, -0.239312, 0), Vector(0.604057, -0.016249, 0), Vector(0.570634, -0.18541, 0)], [4, 4], [0, 1], False, 3, [1, 1, 1, 1], False),
    Part.BSplineCurve([Vector(1.2, 0, 0), Vector(1.142731, 0.239312, 0), Vector(0.604057, 0.016249, 0), Vector(0.570634, 0.18541, 0)], [4, 4], [0, 1], False, 3, [1, 1, 1, 1], False),
    Part.BSplineCurve([Vector(0.97082, 0.705342, 0), Vector(1.065153, 0.478072, 0), Vector(0.498243, 0.34191, 0), Vector(0.570634, 0.18541, 0)], [4, 4], [0, 1], False, 3, [1, 1, 1, 1], False),
    Part.BSplineCurve([Vector(0.97082, 0.705342, 0), Vector(0.783824, 0.865288, 0), Vector(0.479142, 0.368201, 0), Vector(0.352671, 0.48541, 0)], [4, 4], [0, 1], False, 3, [1, 1, 1, 1], False),
], False)
sketch2.addConstraint([
    Sketcher.Constraint("Block", 0),
    Sketcher.Constraint("Block", 1),
    Sketcher.Constraint("Block", 2),
    Sketcher.Constraint("Block", 3),
    Sketcher.Constraint("Block", 4),
    Sketcher.Constraint("Block", 5),
    Sketcher.Constraint("Block", 6),
    Sketcher.Constraint("Block", 7),
    Sketcher.Constraint("Block", 8),
    Sketcher.Constraint("Block", 9),
    Sketcher.Constraint("Block", 10),
    Sketcher.Constraint("Block", 11),
    Sketcher.Constraint("Block", 12),
    Sketcher.Constraint("Block", 13),
    Sketcher.Constraint("Block", 14),
    Sketcher.Constraint("Block", 15),
    Sketcher.Constraint("Block", 16),
    Sketcher.Constraint("Block", 17),
    Sketcher.Constraint("Block", 18),
    Sketcher.Constraint("Block", 19),
])
pad2 = body.newObject("PartDesign::Pad", "Pad001")
pad2.Profile = sketch2
pad2.Length = 0.5

sketch3 = body.newObject("Sketcher::SketchObject", "Sketch002")
sketch3.AttachmentSupport = (doc.getObject("XY_Plane"), [""])
sketch3.MapMode = "FlatFace"
sketch3.addGeometry(Part.Circle(Vector(0, 0, 0), Vector(0, 0, 1), 0.4), False)
sketch3.addConstraint([
    Sketcher.Constraint("Coincident", 0, 3, -1, 1),
    Sketcher.Constraint("Diameter", 0, Q("0.8 mm")),
])
pocket1 = body.newObject("PartDesign::Pocket", "Pocket")
pocket1.Profile = sketch3
pocket1.Type = "ThroughAll"
pocket1.Reversed = True

doc.recompute()
